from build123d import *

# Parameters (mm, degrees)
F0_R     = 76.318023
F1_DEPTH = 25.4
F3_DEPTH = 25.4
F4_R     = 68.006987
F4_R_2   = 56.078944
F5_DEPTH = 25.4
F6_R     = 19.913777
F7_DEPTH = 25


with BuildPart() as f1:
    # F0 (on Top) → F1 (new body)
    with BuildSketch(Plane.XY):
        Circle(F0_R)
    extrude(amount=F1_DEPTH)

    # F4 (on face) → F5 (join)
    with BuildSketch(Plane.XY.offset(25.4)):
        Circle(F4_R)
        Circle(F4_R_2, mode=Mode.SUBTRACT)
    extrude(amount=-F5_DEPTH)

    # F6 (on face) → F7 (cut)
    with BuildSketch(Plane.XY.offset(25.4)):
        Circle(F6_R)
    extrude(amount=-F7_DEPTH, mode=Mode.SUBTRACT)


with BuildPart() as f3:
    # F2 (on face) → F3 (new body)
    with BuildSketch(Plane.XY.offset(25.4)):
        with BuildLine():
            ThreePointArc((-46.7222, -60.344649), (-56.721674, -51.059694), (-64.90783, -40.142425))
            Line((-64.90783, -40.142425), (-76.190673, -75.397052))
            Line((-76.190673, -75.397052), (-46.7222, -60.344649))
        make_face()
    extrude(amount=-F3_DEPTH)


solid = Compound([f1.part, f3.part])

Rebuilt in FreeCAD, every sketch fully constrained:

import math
import FreeCAD as App
import Part
import Sketcher
from FreeCAD import Vector

doc = App.newDocument("Part")
body = doc.addObject("PartDesign::Body", "Body")

# Sketch on XY plane
sketch1 = body.newObject("Sketcher::SketchObject", "Sketch")
sketch1.AttachmentSupport = (doc.getObject("XY_Plane"), [""])
sketch1.MapMode = "FlatFace"
sketch1.addGeometry(Part.Circle(Vector(0, 0, 0), Vector(0, 0, 1), 76), False)
sketch1.addConstraint([
    Sketcher.Constraint("Coincident", 0, 3, -1, 1),
    Sketcher.Constraint("Diameter", 0, 152.636046),
])
pad1 = body.newObject("PartDesign::Pad", "Pad")
pad1.Profile = sketch1
pad1.Length = 25.4

# Sketch on XY plane
sketch2 = body.newObject("Sketcher::SketchObject", "Sketch001")
sketch2.AttachmentSupport = (doc.getObject("XY_Plane"), [""])
sketch2.MapMode = "FlatFace"
sketch2.AttachmentOffset = App.Placement(Vector(0, 0, 25.4), App.Rotation())
sketch2.addGeometry([
    Part.Circle(Vector(0, 0, 0), Vector(0, 0, 1), 68),
    Part.Circle(Vector(0, 0, 0), Vector(0, 0, 1), 56),
], False)
sketch2.addConstraint([
    Sketcher.Constraint("Coincident", 0, 3, -1, 1),
    Sketcher.Constraint("Coincident", 1, 3, -1, 1),
    Sketcher.Constraint("Diameter", 1, 112.157888),
    Sketcher.Constraint("Diameter", 0, 136.013974),
])
pad2 = body.newObject("PartDesign::Pad", "Pad001")
pad2.Profile = sketch2
pad2.Length = 25.4
pad2.Reversed = True

# Sketch on XY plane
sketch3 = body.newObject("Sketcher::SketchObject", "Sketch002")
sketch3.AttachmentSupport = (doc.getObject("XY_Plane"), [""])
sketch3.MapMode = "FlatFace"
sketch3.AttachmentOffset = App.Placement(Vector(0, 0, 25.4), App.Rotation())
sketch3.addGeometry(Part.Circle(Vector(0, 0, 0), Vector(0, 0, 1), 20), False)
sketch3.addConstraint([
    Sketcher.Constraint("Coincident", 0, 3, -1, 1),
    Sketcher.Constraint("Diameter", 0, 39.827554),
])
pocket1 = body.newObject("PartDesign::Pocket", "Pocket")
pocket1.Profile = sketch3
pocket1.Length = 25
body2 = doc.addObject("PartDesign::Body", "Body001")

# Sketch on XY plane
sketch4 = body2.newObject("Sketcher::SketchObject", "Sketch003")
sketch4.AttachmentSupport = (doc.getObject("XY_Plane001"), [""])
sketch4.MapMode = "FlatFace"
sketch4.AttachmentOffset = App.Placement(Vector(0, 0, 25.4), App.Rotation())
sketch4.addGeometry([
    Part.ArcOfCircle(Part.Circle(Vector(0, 0, 0), Vector(0, 0, 1), 76), math.radians(-148), math.radians(-128)),
    Part.LineSegment(Vector(-65, -40, 0), Vector(-76, -75, 0)),
    Part.LineSegment(Vector(-76, -75, 0), Vector(-47, -60, 0)),
], False)
sketch4.addConstraint([
    Sketcher.Constraint("Coincident", 0, 1, 1, 1),
    Sketcher.Constraint("Coincident", 1, 2, 2, 1),
    Sketcher.Constraint("Coincident", 2, 2, 0, 2),
    Sketcher.Constraint("Coincident", 0, 3, -1, 1),
    Sketcher.Constraint("Radius", 0, 76.318025),
    Sketcher.Constraint("DistanceX", 2, 2, -1, 1, 46.7222),
    Sketcher.Constraint("DistanceX", 0, 1, -1, 1, 64.90783),
    Sketcher.Constraint("Distance", 1, 37.016095),
    Sketcher.Constraint("Distance", 2, 33.090266),
])
pad3 = body2.newObject("PartDesign::Pad", "Pad002")
pad3.Profile = sketch4
pad3.Length = 25.4
pad3.Reversed = True

doc.recompute()
